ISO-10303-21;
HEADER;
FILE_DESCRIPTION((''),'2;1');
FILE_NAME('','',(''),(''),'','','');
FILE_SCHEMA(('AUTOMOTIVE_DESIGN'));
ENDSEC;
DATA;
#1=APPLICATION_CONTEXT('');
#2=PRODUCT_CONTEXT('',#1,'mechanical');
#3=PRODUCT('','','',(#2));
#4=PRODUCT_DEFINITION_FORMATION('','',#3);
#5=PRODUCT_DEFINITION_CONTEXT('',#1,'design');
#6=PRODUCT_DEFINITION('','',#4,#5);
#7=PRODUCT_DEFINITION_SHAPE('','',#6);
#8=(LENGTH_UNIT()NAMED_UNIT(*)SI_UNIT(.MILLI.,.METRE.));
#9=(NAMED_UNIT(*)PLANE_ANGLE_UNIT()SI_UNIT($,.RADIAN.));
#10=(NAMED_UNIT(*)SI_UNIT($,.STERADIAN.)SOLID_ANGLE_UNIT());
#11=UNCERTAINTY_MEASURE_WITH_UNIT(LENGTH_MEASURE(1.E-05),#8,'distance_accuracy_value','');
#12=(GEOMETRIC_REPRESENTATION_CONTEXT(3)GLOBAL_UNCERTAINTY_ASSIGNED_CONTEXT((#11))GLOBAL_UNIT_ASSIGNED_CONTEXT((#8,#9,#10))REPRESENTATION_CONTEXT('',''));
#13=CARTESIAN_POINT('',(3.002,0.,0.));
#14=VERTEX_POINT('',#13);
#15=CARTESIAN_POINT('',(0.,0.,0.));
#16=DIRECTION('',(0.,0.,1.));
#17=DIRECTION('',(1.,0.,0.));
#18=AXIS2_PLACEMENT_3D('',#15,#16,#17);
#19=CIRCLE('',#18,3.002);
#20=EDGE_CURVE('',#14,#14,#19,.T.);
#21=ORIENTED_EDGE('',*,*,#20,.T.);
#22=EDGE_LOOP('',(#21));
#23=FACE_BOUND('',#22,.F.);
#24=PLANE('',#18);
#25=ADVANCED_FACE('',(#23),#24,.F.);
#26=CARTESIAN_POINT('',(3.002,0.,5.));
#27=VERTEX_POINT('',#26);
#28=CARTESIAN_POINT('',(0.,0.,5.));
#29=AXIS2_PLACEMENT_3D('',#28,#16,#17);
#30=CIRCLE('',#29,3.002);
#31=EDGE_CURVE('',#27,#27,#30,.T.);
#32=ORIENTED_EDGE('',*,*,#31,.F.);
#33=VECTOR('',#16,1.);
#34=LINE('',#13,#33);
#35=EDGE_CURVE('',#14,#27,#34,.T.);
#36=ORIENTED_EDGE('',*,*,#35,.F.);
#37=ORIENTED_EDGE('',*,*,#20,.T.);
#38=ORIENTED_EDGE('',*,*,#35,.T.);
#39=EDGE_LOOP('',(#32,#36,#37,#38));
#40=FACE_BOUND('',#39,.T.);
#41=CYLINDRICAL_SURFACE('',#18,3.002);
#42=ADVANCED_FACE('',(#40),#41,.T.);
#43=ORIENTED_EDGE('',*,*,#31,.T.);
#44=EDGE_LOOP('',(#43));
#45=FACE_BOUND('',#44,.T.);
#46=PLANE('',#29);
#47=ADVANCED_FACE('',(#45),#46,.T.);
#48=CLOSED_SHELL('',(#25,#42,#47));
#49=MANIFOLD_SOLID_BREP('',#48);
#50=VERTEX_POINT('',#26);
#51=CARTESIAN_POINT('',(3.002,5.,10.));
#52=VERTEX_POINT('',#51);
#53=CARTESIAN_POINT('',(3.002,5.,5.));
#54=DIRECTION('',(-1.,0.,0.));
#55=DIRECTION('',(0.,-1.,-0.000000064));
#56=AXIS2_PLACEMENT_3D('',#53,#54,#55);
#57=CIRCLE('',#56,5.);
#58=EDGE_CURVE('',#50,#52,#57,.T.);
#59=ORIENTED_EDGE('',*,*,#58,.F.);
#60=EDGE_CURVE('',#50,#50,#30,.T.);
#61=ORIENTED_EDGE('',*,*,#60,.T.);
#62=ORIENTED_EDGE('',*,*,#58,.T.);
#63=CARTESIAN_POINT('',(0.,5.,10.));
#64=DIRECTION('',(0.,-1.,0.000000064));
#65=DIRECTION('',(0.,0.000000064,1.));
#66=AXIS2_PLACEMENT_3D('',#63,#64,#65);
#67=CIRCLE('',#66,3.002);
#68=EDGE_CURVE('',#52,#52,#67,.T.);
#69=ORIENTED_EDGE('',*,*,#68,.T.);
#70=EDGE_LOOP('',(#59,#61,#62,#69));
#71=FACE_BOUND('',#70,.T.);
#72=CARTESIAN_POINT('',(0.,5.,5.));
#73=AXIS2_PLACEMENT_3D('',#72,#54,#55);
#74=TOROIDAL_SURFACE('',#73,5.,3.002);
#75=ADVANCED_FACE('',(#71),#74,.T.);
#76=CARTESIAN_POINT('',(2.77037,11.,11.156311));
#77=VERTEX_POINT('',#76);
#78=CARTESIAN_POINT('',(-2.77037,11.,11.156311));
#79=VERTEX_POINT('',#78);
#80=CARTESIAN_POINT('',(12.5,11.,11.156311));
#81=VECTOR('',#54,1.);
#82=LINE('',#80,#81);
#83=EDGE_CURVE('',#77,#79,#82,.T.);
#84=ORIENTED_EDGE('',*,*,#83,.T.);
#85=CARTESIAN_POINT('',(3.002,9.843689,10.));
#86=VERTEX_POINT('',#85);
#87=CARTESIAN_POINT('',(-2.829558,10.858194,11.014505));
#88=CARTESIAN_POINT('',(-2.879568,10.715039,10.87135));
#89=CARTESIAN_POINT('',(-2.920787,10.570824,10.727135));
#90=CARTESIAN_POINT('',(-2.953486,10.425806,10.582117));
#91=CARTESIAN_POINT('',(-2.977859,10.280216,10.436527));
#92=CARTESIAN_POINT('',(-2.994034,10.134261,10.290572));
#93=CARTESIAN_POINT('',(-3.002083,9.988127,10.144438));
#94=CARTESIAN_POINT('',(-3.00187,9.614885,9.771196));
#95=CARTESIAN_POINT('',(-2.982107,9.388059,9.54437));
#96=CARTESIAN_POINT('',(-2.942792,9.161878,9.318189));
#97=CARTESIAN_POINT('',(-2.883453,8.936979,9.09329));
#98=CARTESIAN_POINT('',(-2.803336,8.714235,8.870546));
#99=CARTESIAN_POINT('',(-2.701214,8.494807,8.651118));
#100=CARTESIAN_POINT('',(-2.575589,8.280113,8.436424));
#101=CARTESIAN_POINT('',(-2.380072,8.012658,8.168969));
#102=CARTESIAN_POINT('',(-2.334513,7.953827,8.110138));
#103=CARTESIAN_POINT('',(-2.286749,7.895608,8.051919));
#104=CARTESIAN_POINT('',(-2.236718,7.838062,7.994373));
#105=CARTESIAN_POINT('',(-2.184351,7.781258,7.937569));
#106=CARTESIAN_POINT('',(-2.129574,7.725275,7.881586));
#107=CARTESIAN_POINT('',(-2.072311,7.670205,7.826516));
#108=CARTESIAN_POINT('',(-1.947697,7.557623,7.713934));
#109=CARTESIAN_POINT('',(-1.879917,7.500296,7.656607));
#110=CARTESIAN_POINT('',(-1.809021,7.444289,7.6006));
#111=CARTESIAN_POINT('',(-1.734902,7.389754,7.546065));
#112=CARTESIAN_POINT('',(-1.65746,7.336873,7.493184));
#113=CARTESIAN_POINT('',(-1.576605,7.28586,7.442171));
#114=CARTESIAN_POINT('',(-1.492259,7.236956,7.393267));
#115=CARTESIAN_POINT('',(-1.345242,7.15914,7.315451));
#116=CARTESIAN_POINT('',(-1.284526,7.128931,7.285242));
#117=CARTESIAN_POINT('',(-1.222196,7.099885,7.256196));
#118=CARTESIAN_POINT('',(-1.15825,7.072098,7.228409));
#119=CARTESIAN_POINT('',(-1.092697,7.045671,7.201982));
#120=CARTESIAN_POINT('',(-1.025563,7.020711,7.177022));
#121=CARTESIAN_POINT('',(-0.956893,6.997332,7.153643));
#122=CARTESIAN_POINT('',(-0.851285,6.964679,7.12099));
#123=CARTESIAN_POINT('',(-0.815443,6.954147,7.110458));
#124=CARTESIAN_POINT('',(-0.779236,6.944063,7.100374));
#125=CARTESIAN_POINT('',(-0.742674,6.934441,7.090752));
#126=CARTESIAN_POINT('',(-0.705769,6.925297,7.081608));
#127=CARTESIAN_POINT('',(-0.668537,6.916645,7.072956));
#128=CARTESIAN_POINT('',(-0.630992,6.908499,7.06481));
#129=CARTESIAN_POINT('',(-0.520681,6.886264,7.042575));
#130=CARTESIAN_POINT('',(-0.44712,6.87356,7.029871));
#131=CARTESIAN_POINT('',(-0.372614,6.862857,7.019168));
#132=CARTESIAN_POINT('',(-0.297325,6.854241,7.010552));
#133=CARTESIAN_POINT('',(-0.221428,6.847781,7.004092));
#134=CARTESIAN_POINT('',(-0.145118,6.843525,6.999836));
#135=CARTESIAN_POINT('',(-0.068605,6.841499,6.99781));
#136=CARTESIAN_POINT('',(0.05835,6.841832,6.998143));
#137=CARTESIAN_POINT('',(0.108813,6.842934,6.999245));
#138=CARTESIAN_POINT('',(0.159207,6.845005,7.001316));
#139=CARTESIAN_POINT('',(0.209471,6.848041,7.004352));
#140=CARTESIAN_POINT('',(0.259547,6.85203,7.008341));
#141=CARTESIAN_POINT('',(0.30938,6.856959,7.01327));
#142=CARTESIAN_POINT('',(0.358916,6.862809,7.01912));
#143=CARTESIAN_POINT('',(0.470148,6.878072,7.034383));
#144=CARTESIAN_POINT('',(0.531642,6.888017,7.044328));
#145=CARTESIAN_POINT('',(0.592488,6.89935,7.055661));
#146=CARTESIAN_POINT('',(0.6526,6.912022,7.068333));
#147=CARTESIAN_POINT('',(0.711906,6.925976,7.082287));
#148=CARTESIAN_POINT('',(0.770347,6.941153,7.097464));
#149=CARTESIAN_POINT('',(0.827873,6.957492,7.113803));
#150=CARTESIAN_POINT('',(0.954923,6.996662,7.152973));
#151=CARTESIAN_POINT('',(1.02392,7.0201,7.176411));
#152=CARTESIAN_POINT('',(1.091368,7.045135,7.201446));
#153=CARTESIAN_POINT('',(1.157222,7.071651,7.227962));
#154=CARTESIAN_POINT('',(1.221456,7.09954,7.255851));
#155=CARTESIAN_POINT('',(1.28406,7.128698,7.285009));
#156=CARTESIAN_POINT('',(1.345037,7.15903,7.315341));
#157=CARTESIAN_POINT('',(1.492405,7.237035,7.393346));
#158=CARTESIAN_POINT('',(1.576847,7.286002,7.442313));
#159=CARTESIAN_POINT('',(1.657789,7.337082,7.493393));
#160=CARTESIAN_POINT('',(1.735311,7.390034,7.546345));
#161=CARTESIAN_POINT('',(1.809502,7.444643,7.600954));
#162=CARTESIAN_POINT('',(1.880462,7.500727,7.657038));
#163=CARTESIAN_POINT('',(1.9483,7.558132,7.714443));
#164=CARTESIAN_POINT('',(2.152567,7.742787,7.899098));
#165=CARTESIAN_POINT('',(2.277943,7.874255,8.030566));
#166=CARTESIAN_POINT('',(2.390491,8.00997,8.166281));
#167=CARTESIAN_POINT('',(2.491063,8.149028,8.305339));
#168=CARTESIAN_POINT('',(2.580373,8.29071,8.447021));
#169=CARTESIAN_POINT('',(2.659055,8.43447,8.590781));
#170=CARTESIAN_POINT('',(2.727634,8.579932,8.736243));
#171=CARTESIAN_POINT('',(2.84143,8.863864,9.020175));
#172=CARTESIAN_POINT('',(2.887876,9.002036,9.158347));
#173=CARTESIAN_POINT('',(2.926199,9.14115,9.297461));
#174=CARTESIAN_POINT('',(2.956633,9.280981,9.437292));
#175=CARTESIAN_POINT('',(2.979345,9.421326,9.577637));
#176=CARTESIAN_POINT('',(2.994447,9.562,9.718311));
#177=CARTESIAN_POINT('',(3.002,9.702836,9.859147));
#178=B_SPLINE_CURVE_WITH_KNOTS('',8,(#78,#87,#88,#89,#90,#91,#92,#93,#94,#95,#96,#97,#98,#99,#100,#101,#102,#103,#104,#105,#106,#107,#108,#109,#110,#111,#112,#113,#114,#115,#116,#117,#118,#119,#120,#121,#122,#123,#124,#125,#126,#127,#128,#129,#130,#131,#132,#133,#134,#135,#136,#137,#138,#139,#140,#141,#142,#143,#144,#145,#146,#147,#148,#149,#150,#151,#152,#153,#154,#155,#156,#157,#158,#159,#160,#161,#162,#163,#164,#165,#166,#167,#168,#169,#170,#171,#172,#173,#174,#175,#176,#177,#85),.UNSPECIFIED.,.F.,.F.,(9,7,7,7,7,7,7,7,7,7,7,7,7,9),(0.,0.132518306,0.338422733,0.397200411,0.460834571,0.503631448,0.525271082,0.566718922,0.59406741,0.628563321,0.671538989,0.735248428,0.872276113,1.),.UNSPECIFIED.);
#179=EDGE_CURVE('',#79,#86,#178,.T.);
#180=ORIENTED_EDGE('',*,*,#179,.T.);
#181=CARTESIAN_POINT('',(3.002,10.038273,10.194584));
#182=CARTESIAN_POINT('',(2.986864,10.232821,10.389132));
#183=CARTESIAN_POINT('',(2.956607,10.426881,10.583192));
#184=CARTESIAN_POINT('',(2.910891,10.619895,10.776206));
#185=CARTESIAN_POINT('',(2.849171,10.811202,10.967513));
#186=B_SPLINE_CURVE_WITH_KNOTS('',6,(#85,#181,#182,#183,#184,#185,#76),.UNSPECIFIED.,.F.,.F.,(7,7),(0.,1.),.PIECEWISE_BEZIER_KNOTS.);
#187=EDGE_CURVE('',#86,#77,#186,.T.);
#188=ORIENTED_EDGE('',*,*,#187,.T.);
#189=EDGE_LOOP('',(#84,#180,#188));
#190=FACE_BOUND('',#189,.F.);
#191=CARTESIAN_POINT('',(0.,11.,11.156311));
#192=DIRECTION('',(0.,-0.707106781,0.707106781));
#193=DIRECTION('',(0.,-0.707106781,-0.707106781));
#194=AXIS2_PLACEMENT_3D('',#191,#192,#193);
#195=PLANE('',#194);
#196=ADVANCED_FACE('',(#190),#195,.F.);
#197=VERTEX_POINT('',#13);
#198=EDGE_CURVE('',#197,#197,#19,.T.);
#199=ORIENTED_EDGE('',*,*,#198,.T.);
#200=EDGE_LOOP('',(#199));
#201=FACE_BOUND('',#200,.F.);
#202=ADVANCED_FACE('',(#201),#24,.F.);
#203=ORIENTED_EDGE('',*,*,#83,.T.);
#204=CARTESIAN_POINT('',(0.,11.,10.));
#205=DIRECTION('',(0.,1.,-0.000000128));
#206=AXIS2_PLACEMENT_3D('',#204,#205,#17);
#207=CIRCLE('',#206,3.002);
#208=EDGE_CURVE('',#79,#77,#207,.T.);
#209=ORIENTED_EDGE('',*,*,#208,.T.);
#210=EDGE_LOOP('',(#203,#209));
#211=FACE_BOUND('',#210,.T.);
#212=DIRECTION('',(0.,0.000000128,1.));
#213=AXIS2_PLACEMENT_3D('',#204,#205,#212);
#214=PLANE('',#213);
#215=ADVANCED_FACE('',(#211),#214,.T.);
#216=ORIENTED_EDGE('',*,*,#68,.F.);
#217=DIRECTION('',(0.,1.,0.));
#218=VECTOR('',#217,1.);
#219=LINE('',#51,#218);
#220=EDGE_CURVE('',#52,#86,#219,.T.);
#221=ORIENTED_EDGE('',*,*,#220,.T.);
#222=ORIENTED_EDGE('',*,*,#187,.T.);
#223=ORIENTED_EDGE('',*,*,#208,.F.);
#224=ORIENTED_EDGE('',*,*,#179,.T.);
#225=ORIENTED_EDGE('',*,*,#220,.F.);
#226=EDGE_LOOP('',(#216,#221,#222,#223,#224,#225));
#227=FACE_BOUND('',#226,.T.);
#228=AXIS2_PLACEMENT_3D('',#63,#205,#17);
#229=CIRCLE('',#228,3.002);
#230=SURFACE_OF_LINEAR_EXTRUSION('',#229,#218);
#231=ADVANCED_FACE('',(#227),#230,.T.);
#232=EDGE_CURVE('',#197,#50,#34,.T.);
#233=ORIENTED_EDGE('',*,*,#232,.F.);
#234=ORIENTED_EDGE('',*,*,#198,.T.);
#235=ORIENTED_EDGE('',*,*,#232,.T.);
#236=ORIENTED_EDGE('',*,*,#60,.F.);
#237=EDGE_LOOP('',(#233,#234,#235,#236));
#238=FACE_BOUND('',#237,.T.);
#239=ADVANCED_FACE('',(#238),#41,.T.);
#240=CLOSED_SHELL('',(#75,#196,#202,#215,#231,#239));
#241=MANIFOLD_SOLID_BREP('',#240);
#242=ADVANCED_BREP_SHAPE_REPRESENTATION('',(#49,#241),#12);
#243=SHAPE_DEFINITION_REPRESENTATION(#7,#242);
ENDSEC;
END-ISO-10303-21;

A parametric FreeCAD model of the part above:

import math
import FreeCAD as App
import Part
import Sketcher

V = App.Vector

doc = App.newDocument("Part")
body = doc.addObject("PartDesign::Body", "Body")

# Sketch on XY plane
sketch1 = body.newObject("Sketcher::SketchObject", "Sketch")
sketch1.AttachmentSupport = (doc.getObject("XY_Plane"), [""])
sketch1.MapMode = "FlatFace"
sketch1.addGeometry(Part.Circle(V(0, 0, 0), V(0, 0, 1), 3), False)
sketch1.addConstraint(Sketcher.Constraint("Coincident", 0, 3, -1, 1))
sketch1.addConstraint(Sketcher.Constraint("Diameter", 0, 6.004))

# Sketch on YZ plane
sketch2 = body.newObject("Sketcher::SketchObject", "Sketch001")
sketch2.AttachmentSupport = (doc.getObject("YZ_Plane"), [""])
sketch2.MapMode = "FlatFace"
sketch2.addGeometry(Part.LineSegment(V(0, 0, 0), V(0, 5, 0)), False)
sketch2.addGeometry(Part.ArcOfCircle(Part.Circle(V(5, 5, 0), V(0, 0, 1), 5), math.radians(90), math.radians(180)), False)
sketch2.addGeometry(Part.LineSegment(V(5, 10, 0), V(11, 10, 0)), False)
sketch2.addConstraint(Sketcher.Constraint("Tangent", 0, 2, 1, 2))
sketch2.addConstraint(Sketcher.Constraint("Tangent", 1, 1, 2, 1))
sketch2.addConstraint(Sketcher.Constraint("Vertical", 0))
sketch2.addConstraint(Sketcher.Constraint("Horizontal", 2))
sketch2.addConstraint(Sketcher.Constraint("Coincident", 0, 1, -1, 1))
sketch2.addConstraint(Sketcher.Constraint("Radius", 1, 5.0))
sketch2.addConstraint(Sketcher.Constraint("DistanceX", 2, 1, 2, 2, 6.0))
sketch2.addConstraint(Sketcher.Constraint("DistanceY", 0, 1, 0, 2, 5.0))
doc.recompute()

additivepipe = body.newObject("PartDesign::AdditivePipe", "AdditivePipe")
additivepipe.Profile = sketch1
additivepipe.Spine = (sketch2, ["Edge1", "Edge2", "Edge3"])

# Sketch on YZ plane
sketch3 = body.newObject("Sketcher::SketchObject", "Sketch002")
sketch3.AttachmentSupport = (doc.getObject("YZ_Plane"), [""])
sketch3.MapMode = "FlatFace"
sketch3.addGeometry(Part.LineSegment(V(11, 11.2, 0), V(6.8, 7, 0)), False)
sketch3.addGeometry(Part.LineSegment(V(6.8, 7, 0), V(11, 7, 0)), False)
sketch3.addGeometry(Part.LineSegment(V(11, 7, 0), V(11, 11.2, 0)), False)
sketch3.addConstraint(Sketcher.Constraint("Coincident", 0, 2, 1, 1))
sketch3.addConstraint(Sketcher.Constraint("Coincident", 1, 2, 2, 1))
sketch3.addConstraint(Sketcher.Constraint("Coincident", 2, 2, 0, 1))
sketch3.addConstraint(Sketcher.Constraint("Horizontal", 1))
sketch3.addConstraint(Sketcher.Constraint("Vertical", 2))
sketch3.addConstraint(Sketcher.Constraint("Equal", 1, 2))
sketch3.addConstraint(Sketcher.Constraint("DistanceX", -1, 1, 1, 2, 11.0))
sketch3.addConstraint(Sketcher.Constraint("DistanceY", -1, 1, 0, 2, 6.998))
sketch3.addConstraint(Sketcher.Constraint("DistanceX", 1, 1, 1, 2, 4.158311))
pocket1 = body.newObject("PartDesign::Pocket", "Pocket")
pocket1.Profile = sketch3
pocket1.Length = 25
pocket1.Midplane = True
body2 = doc.addObject("PartDesign::Body", "Body001")

# Sketch on XY plane
sketch4 = body2.newObject("Sketcher::SketchObject", "Sketch003")
sketch4.AttachmentSupport = (doc.getObject("XY_Plane001"), [""])
sketch4.MapMode = "FlatFace"
sketch4.addGeometry(Part.Circle(V(0, 0, 0), V(0, 0, 1), 3), False)
sketch4.addConstraint(Sketcher.Constraint("Coincident", 0, 3, -1, 1))
sketch4.addConstraint(Sketcher.Constraint("Diameter", 0, 6.004))

# Sketch on XZ plane
sketch5 = body2.newObject("Sketcher::SketchObject", "Sketch004")
sketch5.AttachmentSupport = (doc.getObject("XZ_Plane001"), [""])
sketch5.MapMode = "FlatFace"
sketch5.addGeometry(Part.LineSegment(V(0, 0, 0), V(0, 5, 0)), False)
sketch5.addConstraint(Sketcher.Constraint("Vertical", 0))
sketch5.addConstraint(Sketcher.Constraint("Coincident", 0, 1, -1, 1))
sketch5.addConstraint(Sketcher.Constraint("DistanceY", 0, 1, 0, 2, 5.0))
doc.recompute()

additivepipe2 = body2.newObject("PartDesign::AdditivePipe", "AdditivePipe001")
additivepipe2.Profile = sketch4
additivepipe2.Spine = (sketch5, ["Edge1"])

doc.recompute()
